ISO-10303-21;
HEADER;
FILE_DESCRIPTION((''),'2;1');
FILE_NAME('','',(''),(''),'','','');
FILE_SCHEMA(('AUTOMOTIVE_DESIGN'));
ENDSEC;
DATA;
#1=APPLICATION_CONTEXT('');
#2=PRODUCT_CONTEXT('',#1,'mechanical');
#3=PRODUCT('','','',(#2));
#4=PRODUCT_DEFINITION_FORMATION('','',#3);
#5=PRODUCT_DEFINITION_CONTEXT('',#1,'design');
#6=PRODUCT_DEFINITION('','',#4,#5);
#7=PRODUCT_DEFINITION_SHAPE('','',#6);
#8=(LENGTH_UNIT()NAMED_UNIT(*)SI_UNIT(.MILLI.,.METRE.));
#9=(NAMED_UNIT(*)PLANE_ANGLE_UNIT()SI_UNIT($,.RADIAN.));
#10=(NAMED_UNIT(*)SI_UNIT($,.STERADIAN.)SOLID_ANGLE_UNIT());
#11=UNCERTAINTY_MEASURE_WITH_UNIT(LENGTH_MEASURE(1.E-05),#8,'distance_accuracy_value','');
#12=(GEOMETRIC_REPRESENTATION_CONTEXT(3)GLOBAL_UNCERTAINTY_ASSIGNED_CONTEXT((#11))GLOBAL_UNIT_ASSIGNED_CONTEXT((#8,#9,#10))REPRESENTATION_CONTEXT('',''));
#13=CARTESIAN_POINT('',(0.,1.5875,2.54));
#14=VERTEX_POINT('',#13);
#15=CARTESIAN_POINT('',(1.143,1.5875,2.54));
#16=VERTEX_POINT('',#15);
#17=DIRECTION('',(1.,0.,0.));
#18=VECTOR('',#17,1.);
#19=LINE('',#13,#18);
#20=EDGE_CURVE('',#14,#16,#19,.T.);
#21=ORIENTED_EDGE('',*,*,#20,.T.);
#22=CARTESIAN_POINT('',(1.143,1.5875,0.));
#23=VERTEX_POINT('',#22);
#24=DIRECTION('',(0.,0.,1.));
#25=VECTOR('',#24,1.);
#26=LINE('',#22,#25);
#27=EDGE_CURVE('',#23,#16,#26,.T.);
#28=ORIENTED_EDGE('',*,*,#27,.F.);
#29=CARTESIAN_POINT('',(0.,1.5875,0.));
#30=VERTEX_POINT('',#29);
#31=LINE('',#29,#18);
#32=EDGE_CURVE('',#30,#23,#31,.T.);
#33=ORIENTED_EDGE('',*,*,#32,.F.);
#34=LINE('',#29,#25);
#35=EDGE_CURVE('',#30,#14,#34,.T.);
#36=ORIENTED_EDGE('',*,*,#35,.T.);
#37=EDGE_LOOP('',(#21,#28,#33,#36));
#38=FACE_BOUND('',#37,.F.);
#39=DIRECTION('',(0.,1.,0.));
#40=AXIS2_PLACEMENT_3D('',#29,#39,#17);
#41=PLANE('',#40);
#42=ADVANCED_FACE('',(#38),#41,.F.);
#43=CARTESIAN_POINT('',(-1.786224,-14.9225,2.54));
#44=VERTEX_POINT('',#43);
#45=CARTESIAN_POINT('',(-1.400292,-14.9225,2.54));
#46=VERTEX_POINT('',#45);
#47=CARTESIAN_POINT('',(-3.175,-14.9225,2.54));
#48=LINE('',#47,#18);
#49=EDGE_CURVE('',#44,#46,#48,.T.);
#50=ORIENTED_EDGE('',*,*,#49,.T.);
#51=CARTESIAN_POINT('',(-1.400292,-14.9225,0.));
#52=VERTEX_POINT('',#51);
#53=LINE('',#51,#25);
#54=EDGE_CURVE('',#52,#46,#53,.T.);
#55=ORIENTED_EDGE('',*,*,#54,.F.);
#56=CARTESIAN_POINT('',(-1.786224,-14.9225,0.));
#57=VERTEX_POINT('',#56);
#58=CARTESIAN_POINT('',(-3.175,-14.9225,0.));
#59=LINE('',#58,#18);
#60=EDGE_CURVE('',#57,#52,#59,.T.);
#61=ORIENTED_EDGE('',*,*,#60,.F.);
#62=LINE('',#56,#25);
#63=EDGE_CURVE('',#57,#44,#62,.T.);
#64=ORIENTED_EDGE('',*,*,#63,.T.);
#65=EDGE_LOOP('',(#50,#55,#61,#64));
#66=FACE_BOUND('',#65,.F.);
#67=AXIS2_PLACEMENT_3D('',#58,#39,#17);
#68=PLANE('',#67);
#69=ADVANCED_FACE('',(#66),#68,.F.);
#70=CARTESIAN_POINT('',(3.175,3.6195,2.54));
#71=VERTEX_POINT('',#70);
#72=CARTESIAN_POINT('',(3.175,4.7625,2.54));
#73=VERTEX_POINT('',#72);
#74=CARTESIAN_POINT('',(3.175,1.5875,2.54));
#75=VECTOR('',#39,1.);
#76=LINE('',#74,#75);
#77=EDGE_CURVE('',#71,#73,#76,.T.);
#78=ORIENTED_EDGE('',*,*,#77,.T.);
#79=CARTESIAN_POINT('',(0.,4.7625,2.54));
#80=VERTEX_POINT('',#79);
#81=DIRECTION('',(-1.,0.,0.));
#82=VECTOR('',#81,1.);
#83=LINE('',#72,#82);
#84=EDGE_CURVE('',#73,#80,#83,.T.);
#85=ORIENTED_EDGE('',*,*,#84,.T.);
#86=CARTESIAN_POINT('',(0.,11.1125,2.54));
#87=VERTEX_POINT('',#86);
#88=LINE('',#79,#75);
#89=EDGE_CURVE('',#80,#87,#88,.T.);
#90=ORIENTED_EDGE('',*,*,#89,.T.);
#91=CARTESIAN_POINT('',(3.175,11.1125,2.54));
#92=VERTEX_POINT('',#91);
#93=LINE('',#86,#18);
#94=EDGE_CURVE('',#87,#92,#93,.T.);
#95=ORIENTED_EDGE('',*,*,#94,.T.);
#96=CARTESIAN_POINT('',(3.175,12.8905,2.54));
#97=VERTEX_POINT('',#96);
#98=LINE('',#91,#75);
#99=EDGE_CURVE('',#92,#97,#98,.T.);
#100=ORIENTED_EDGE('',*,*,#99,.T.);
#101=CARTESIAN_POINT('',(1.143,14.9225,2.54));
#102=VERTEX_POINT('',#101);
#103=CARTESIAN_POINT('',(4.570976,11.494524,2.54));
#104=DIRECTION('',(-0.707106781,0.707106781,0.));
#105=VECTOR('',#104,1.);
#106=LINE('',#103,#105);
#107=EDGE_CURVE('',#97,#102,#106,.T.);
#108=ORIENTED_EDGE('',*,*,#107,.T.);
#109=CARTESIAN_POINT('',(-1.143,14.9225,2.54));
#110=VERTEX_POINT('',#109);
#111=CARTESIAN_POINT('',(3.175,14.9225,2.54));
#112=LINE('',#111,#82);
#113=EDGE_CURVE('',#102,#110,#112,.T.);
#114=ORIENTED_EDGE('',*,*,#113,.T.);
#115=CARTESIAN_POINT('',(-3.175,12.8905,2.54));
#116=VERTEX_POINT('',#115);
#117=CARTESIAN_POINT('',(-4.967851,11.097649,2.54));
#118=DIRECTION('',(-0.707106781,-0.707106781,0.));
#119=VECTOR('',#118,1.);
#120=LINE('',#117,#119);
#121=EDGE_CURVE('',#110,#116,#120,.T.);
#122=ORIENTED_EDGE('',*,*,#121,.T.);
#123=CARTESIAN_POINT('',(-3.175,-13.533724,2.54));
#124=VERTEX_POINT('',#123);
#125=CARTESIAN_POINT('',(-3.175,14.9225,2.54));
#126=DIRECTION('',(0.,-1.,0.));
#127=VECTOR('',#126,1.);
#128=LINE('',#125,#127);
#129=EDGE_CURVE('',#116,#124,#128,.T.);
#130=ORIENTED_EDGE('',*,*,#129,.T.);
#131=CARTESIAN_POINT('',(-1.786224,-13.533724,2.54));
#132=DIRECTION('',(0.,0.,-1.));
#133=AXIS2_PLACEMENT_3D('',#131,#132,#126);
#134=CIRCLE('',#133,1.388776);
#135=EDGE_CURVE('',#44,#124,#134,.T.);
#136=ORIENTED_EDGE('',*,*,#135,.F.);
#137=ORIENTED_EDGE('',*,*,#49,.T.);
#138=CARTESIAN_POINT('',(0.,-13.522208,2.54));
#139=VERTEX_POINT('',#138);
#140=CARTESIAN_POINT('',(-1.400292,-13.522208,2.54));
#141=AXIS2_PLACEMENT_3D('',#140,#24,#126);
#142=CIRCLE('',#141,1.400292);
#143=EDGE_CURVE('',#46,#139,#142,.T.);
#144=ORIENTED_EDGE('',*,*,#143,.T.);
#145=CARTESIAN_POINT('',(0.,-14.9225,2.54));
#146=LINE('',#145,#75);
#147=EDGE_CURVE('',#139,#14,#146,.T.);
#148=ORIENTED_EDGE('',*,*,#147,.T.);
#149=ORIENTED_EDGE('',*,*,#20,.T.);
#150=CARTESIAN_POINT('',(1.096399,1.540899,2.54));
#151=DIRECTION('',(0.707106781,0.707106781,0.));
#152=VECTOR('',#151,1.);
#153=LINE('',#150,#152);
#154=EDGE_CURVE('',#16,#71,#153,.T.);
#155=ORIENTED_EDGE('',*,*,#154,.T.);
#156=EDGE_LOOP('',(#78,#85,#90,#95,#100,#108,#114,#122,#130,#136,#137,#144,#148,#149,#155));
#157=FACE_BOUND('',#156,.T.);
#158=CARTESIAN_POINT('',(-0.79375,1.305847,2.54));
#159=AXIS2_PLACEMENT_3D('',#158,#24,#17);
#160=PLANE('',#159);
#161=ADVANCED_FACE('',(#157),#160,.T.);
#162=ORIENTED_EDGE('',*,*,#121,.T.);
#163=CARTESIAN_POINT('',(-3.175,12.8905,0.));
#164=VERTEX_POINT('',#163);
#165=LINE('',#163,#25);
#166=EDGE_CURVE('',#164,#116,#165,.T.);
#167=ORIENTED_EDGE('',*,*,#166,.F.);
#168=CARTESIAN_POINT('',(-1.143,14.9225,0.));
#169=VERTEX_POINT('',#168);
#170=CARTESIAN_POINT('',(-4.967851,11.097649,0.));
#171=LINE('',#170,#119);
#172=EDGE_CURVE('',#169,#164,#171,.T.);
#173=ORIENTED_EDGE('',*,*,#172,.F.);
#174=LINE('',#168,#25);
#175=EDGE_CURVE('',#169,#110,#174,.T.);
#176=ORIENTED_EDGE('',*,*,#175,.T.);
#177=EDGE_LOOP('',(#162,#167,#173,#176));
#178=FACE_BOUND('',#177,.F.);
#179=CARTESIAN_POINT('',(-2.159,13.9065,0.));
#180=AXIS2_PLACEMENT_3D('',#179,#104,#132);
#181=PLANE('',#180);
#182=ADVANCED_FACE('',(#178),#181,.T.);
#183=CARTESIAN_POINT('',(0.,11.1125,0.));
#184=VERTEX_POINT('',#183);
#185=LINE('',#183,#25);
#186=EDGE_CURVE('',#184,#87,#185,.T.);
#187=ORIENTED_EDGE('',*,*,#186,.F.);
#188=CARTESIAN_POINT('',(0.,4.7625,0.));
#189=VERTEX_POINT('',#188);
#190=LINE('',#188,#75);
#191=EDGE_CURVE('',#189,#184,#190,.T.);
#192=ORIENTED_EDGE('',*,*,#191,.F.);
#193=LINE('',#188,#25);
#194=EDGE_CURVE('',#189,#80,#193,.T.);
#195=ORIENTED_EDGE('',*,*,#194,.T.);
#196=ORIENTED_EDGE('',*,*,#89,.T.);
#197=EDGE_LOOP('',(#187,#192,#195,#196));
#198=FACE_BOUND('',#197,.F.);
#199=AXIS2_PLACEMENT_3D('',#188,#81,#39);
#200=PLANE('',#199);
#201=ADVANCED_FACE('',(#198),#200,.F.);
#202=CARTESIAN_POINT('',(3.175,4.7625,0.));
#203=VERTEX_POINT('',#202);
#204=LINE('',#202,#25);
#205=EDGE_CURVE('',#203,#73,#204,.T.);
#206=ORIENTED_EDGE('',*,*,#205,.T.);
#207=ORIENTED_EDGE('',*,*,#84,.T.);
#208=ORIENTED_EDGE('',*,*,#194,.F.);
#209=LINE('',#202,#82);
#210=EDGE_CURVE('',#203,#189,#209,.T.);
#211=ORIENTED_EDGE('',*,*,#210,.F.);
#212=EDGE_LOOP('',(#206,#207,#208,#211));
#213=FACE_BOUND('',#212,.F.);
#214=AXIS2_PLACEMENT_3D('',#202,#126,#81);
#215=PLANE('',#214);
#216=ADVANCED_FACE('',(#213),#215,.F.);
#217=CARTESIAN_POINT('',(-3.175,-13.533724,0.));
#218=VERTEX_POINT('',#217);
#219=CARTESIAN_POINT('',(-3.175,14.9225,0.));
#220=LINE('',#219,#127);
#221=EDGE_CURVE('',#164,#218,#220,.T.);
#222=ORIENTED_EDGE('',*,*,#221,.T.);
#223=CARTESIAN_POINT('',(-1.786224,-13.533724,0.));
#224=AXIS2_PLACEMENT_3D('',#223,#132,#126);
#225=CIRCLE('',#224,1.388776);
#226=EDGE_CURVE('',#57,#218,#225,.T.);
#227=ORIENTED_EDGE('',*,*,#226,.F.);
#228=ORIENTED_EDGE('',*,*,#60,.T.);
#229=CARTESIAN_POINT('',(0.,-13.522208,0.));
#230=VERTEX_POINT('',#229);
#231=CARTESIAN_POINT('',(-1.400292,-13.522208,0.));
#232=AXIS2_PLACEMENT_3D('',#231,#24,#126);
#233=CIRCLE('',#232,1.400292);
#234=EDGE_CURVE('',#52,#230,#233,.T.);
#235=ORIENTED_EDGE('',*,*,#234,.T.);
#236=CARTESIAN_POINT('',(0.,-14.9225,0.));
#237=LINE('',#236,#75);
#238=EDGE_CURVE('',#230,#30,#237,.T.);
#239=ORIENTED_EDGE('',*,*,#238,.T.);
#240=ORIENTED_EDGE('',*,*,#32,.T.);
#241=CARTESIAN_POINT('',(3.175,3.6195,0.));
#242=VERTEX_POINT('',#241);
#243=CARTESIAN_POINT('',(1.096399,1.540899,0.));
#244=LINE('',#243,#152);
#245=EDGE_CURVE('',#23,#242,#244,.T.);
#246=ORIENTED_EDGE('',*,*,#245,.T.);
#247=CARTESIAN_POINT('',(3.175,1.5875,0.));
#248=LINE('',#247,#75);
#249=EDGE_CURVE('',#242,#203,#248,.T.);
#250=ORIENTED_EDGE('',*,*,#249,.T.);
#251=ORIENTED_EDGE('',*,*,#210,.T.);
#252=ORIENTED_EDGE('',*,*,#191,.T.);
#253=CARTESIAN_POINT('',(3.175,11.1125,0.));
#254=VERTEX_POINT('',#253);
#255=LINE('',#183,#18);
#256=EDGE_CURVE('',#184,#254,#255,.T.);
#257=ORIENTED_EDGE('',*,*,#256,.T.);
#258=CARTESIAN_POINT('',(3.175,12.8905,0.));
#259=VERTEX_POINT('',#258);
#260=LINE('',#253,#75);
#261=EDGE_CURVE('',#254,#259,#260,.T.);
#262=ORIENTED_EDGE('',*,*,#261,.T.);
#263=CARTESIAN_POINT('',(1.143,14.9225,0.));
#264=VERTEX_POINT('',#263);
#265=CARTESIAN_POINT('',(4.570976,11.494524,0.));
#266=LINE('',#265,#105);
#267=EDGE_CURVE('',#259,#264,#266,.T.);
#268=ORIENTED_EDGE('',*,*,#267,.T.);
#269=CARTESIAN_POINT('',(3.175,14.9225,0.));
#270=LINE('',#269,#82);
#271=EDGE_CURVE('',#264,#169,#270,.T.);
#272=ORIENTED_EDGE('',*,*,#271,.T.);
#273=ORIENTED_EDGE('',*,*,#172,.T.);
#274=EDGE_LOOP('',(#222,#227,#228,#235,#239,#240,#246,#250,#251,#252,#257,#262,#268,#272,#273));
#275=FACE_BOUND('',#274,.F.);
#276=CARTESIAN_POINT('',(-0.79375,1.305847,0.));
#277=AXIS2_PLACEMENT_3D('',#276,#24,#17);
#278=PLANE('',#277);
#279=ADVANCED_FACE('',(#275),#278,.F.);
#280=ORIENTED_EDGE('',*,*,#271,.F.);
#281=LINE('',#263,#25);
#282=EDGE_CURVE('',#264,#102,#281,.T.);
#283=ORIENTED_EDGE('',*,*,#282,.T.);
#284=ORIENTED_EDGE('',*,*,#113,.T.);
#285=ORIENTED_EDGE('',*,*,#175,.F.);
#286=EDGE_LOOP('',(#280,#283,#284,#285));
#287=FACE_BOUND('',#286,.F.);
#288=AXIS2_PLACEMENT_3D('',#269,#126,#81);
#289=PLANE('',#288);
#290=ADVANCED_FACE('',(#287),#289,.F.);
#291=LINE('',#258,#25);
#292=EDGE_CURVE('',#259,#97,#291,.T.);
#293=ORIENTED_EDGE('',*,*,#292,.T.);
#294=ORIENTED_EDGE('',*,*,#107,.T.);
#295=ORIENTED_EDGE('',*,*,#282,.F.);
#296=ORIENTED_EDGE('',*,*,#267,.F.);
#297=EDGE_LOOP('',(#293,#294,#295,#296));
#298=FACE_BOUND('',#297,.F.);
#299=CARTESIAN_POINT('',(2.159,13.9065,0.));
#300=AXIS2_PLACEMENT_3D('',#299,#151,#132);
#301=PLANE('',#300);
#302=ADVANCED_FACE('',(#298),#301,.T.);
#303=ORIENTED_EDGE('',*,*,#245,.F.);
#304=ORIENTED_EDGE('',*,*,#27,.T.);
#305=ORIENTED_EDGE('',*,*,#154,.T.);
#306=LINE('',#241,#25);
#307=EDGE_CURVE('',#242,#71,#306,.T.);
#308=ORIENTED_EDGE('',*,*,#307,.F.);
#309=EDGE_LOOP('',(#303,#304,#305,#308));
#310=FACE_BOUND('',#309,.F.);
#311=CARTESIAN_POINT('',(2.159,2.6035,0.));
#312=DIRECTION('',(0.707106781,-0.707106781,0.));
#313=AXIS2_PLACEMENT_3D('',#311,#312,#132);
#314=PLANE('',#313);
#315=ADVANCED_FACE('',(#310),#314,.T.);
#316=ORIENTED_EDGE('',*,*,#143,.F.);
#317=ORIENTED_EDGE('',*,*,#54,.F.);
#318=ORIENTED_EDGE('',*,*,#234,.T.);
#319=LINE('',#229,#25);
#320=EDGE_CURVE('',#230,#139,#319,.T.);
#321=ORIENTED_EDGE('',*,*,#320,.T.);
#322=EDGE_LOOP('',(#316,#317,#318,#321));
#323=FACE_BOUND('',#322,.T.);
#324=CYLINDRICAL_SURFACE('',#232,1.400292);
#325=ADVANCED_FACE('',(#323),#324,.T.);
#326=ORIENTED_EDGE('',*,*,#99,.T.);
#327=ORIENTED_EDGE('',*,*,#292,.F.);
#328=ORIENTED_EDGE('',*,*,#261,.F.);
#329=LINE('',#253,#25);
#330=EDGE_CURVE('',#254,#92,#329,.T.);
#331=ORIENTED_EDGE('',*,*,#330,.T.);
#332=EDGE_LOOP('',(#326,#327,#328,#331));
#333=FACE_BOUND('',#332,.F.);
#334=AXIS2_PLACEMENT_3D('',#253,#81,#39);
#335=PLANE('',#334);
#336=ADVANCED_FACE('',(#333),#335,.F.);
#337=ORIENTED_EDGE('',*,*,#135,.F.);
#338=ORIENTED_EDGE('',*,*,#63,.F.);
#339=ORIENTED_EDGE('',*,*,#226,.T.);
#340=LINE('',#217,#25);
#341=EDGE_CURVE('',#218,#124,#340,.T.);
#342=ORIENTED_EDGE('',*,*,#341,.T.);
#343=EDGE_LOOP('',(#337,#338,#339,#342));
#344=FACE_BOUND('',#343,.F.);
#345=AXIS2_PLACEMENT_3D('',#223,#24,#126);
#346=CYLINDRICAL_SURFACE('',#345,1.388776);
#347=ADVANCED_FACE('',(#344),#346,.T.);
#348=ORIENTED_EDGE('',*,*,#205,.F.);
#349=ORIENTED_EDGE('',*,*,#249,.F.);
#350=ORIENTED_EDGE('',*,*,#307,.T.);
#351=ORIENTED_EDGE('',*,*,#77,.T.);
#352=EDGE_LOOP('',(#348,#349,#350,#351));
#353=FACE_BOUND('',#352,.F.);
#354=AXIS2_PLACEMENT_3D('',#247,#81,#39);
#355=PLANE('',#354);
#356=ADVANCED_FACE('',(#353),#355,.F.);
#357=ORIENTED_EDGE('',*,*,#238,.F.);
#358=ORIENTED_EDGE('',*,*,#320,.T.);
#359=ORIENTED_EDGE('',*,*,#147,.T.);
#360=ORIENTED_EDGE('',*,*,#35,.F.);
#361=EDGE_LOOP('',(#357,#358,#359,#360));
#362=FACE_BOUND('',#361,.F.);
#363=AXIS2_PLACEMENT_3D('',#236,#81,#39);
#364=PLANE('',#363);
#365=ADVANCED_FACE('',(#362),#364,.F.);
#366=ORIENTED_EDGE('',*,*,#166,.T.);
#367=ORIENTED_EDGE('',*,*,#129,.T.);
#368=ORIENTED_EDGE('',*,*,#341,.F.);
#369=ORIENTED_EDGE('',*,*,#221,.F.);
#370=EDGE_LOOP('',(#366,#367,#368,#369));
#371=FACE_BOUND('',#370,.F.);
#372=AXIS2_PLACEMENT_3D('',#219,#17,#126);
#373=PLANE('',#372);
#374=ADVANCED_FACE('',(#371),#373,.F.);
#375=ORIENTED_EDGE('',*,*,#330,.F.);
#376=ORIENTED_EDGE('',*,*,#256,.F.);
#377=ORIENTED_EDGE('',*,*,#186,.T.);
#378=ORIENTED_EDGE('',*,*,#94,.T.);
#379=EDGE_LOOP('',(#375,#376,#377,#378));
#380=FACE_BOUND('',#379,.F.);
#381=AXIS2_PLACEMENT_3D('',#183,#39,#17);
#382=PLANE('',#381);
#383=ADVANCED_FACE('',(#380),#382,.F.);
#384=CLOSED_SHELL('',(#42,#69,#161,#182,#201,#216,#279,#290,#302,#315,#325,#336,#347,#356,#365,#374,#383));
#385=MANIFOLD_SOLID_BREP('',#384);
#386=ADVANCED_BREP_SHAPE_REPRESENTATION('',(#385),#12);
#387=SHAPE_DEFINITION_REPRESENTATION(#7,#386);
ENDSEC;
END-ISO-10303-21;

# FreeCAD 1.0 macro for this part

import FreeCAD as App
import Part
import Sketcher
from FreeCAD import Vector
Q = App.Units.Quantity


def edges_at(feature, points):
    """Names of the edges that pass closest to the given points."""
    edges = feature.Shape.Edges
    near = lambda p: min(range(len(edges)), key=lambda i: edges[i].distToShape(Part.Vertex(*p))[0])
    return sorted({f"Edge{near(p) + 1}" for p in points})


def add_polygon(sketch, points):
    """Adds a closed chain of lines whose ends are joined by coincident constraints."""
    first, n = sketch.GeometryCount, len(points)
    for a, b in zip(points, points[1:] + points[:1]):
        sketch.addGeometry(Part.LineSegment(App.Vector(*a, 0), App.Vector(*b, 0)), False)
    for i in range(n):
        sketch.addConstraint(Sketcher.Constraint("Coincident", first + i, 2, first + (i + 1) % n, 1))

doc = App.newDocument("Part")
body = doc.addObject("PartDesign::Body", "Body")

# Sketch on XY plane
sketch1 = body.newObject("Sketcher::SketchObject", "Sketch")
sketch1.AttachmentSupport = (doc.getObject("XY_Plane"), [""])
sketch1.MapMode = "FlatFace"
add_polygon(sketch1, [(3.2, 11.1), (3.2, 14.9), (-3.2, 14.9), (-3.2, -14.9), (0, -14.9), (0, 1.6), (3.2, 1.6), (3.2, 4.8), (0, 4.8), (0, 11.1)])  # lines 0-9
sketch1.addConstraint(Sketcher.Constraint("Vertical", 0))
sketch1.addConstraint(Sketcher.Constraint("Horizontal", 1))
sketch1.addConstraint(Sketcher.Constraint("Vertical", 2))
sketch1.addConstraint(Sketcher.Constraint("Horizontal", 3))
sketch1.addConstraint(Sketcher.Constraint("Vertical", 4))
sketch1.addConstraint(Sketcher.Constraint("Horizontal", 5))
sketch1.addConstraint(Sketcher.Constraint("Vertical", 6))
sketch1.addConstraint(Sketcher.Constraint("Horizontal", 7))
sketch1.addConstraint(Sketcher.Constraint("Vertical", 8))
sketch1.addConstraint(Sketcher.Constraint("Horizontal", 9))
sketch1.addConstraint(Sketcher.Constraint("Symmetric", 0, 2, 2, 2, -1, 1))
sketch1.addConstraint(Sketcher.Constraint("PointOnObject", 3, 2, -2))
sketch1.addConstraint(Sketcher.Constraint("PointOnObject", 7, 2, -2))
sketch1.addConstraint(Sketcher.Constraint("Vertical", 0, 2, 5, 2))
sketch1.addConstraint(Sketcher.Constraint("Equal", 9, 6))
sketch1.addConstraint(Sketcher.Constraint("Equal", 1, 8))
sketch1.addConstraint(Sketcher.Constraint("DistanceX", 1, 2, 1, 1, Q("0.25 in")))
sketch1.addConstraint(Sketcher.Constraint("DistanceY", 0, 1, 0, 2, Q("0.15 in")))
sketch1.addConstraint(Sketcher.Constraint("DistanceY", 4, 1, 4, 2, Q("0.65 in")))
pad1 = body.newObject("PartDesign::Pad", "Pad")
pad1.Profile = sketch1
pad1.Length = Q("0.1 in")
doc.recompute()

chamfer = body.newObject("PartDesign::Chamfer", "Chamfer")
chamfer.Base = (pad1, edges_at(pad1, [(3.175, 1.587, 1.27), (3.175, 14.922, 1.27), (-3.175, 14.922, 1.27)]))
chamfer.Size = Q("0.08 in")
doc.recompute()

fillet = body.newObject("PartDesign::Fillet", "Fillet")
fillet.Base = (chamfer, edges_at(chamfer, [(0, -14.922, 1.27)]))
fillet.Radius = 1.400292
doc.recompute()

fillet2 = body.newObject("PartDesign::Fillet", "Fillet001")
fillet2.Base = (fillet, edges_at(fillet, [(-3.175, -14.922, 1.27)]))
fillet2.Radius = 1.388776

doc.recompute()
